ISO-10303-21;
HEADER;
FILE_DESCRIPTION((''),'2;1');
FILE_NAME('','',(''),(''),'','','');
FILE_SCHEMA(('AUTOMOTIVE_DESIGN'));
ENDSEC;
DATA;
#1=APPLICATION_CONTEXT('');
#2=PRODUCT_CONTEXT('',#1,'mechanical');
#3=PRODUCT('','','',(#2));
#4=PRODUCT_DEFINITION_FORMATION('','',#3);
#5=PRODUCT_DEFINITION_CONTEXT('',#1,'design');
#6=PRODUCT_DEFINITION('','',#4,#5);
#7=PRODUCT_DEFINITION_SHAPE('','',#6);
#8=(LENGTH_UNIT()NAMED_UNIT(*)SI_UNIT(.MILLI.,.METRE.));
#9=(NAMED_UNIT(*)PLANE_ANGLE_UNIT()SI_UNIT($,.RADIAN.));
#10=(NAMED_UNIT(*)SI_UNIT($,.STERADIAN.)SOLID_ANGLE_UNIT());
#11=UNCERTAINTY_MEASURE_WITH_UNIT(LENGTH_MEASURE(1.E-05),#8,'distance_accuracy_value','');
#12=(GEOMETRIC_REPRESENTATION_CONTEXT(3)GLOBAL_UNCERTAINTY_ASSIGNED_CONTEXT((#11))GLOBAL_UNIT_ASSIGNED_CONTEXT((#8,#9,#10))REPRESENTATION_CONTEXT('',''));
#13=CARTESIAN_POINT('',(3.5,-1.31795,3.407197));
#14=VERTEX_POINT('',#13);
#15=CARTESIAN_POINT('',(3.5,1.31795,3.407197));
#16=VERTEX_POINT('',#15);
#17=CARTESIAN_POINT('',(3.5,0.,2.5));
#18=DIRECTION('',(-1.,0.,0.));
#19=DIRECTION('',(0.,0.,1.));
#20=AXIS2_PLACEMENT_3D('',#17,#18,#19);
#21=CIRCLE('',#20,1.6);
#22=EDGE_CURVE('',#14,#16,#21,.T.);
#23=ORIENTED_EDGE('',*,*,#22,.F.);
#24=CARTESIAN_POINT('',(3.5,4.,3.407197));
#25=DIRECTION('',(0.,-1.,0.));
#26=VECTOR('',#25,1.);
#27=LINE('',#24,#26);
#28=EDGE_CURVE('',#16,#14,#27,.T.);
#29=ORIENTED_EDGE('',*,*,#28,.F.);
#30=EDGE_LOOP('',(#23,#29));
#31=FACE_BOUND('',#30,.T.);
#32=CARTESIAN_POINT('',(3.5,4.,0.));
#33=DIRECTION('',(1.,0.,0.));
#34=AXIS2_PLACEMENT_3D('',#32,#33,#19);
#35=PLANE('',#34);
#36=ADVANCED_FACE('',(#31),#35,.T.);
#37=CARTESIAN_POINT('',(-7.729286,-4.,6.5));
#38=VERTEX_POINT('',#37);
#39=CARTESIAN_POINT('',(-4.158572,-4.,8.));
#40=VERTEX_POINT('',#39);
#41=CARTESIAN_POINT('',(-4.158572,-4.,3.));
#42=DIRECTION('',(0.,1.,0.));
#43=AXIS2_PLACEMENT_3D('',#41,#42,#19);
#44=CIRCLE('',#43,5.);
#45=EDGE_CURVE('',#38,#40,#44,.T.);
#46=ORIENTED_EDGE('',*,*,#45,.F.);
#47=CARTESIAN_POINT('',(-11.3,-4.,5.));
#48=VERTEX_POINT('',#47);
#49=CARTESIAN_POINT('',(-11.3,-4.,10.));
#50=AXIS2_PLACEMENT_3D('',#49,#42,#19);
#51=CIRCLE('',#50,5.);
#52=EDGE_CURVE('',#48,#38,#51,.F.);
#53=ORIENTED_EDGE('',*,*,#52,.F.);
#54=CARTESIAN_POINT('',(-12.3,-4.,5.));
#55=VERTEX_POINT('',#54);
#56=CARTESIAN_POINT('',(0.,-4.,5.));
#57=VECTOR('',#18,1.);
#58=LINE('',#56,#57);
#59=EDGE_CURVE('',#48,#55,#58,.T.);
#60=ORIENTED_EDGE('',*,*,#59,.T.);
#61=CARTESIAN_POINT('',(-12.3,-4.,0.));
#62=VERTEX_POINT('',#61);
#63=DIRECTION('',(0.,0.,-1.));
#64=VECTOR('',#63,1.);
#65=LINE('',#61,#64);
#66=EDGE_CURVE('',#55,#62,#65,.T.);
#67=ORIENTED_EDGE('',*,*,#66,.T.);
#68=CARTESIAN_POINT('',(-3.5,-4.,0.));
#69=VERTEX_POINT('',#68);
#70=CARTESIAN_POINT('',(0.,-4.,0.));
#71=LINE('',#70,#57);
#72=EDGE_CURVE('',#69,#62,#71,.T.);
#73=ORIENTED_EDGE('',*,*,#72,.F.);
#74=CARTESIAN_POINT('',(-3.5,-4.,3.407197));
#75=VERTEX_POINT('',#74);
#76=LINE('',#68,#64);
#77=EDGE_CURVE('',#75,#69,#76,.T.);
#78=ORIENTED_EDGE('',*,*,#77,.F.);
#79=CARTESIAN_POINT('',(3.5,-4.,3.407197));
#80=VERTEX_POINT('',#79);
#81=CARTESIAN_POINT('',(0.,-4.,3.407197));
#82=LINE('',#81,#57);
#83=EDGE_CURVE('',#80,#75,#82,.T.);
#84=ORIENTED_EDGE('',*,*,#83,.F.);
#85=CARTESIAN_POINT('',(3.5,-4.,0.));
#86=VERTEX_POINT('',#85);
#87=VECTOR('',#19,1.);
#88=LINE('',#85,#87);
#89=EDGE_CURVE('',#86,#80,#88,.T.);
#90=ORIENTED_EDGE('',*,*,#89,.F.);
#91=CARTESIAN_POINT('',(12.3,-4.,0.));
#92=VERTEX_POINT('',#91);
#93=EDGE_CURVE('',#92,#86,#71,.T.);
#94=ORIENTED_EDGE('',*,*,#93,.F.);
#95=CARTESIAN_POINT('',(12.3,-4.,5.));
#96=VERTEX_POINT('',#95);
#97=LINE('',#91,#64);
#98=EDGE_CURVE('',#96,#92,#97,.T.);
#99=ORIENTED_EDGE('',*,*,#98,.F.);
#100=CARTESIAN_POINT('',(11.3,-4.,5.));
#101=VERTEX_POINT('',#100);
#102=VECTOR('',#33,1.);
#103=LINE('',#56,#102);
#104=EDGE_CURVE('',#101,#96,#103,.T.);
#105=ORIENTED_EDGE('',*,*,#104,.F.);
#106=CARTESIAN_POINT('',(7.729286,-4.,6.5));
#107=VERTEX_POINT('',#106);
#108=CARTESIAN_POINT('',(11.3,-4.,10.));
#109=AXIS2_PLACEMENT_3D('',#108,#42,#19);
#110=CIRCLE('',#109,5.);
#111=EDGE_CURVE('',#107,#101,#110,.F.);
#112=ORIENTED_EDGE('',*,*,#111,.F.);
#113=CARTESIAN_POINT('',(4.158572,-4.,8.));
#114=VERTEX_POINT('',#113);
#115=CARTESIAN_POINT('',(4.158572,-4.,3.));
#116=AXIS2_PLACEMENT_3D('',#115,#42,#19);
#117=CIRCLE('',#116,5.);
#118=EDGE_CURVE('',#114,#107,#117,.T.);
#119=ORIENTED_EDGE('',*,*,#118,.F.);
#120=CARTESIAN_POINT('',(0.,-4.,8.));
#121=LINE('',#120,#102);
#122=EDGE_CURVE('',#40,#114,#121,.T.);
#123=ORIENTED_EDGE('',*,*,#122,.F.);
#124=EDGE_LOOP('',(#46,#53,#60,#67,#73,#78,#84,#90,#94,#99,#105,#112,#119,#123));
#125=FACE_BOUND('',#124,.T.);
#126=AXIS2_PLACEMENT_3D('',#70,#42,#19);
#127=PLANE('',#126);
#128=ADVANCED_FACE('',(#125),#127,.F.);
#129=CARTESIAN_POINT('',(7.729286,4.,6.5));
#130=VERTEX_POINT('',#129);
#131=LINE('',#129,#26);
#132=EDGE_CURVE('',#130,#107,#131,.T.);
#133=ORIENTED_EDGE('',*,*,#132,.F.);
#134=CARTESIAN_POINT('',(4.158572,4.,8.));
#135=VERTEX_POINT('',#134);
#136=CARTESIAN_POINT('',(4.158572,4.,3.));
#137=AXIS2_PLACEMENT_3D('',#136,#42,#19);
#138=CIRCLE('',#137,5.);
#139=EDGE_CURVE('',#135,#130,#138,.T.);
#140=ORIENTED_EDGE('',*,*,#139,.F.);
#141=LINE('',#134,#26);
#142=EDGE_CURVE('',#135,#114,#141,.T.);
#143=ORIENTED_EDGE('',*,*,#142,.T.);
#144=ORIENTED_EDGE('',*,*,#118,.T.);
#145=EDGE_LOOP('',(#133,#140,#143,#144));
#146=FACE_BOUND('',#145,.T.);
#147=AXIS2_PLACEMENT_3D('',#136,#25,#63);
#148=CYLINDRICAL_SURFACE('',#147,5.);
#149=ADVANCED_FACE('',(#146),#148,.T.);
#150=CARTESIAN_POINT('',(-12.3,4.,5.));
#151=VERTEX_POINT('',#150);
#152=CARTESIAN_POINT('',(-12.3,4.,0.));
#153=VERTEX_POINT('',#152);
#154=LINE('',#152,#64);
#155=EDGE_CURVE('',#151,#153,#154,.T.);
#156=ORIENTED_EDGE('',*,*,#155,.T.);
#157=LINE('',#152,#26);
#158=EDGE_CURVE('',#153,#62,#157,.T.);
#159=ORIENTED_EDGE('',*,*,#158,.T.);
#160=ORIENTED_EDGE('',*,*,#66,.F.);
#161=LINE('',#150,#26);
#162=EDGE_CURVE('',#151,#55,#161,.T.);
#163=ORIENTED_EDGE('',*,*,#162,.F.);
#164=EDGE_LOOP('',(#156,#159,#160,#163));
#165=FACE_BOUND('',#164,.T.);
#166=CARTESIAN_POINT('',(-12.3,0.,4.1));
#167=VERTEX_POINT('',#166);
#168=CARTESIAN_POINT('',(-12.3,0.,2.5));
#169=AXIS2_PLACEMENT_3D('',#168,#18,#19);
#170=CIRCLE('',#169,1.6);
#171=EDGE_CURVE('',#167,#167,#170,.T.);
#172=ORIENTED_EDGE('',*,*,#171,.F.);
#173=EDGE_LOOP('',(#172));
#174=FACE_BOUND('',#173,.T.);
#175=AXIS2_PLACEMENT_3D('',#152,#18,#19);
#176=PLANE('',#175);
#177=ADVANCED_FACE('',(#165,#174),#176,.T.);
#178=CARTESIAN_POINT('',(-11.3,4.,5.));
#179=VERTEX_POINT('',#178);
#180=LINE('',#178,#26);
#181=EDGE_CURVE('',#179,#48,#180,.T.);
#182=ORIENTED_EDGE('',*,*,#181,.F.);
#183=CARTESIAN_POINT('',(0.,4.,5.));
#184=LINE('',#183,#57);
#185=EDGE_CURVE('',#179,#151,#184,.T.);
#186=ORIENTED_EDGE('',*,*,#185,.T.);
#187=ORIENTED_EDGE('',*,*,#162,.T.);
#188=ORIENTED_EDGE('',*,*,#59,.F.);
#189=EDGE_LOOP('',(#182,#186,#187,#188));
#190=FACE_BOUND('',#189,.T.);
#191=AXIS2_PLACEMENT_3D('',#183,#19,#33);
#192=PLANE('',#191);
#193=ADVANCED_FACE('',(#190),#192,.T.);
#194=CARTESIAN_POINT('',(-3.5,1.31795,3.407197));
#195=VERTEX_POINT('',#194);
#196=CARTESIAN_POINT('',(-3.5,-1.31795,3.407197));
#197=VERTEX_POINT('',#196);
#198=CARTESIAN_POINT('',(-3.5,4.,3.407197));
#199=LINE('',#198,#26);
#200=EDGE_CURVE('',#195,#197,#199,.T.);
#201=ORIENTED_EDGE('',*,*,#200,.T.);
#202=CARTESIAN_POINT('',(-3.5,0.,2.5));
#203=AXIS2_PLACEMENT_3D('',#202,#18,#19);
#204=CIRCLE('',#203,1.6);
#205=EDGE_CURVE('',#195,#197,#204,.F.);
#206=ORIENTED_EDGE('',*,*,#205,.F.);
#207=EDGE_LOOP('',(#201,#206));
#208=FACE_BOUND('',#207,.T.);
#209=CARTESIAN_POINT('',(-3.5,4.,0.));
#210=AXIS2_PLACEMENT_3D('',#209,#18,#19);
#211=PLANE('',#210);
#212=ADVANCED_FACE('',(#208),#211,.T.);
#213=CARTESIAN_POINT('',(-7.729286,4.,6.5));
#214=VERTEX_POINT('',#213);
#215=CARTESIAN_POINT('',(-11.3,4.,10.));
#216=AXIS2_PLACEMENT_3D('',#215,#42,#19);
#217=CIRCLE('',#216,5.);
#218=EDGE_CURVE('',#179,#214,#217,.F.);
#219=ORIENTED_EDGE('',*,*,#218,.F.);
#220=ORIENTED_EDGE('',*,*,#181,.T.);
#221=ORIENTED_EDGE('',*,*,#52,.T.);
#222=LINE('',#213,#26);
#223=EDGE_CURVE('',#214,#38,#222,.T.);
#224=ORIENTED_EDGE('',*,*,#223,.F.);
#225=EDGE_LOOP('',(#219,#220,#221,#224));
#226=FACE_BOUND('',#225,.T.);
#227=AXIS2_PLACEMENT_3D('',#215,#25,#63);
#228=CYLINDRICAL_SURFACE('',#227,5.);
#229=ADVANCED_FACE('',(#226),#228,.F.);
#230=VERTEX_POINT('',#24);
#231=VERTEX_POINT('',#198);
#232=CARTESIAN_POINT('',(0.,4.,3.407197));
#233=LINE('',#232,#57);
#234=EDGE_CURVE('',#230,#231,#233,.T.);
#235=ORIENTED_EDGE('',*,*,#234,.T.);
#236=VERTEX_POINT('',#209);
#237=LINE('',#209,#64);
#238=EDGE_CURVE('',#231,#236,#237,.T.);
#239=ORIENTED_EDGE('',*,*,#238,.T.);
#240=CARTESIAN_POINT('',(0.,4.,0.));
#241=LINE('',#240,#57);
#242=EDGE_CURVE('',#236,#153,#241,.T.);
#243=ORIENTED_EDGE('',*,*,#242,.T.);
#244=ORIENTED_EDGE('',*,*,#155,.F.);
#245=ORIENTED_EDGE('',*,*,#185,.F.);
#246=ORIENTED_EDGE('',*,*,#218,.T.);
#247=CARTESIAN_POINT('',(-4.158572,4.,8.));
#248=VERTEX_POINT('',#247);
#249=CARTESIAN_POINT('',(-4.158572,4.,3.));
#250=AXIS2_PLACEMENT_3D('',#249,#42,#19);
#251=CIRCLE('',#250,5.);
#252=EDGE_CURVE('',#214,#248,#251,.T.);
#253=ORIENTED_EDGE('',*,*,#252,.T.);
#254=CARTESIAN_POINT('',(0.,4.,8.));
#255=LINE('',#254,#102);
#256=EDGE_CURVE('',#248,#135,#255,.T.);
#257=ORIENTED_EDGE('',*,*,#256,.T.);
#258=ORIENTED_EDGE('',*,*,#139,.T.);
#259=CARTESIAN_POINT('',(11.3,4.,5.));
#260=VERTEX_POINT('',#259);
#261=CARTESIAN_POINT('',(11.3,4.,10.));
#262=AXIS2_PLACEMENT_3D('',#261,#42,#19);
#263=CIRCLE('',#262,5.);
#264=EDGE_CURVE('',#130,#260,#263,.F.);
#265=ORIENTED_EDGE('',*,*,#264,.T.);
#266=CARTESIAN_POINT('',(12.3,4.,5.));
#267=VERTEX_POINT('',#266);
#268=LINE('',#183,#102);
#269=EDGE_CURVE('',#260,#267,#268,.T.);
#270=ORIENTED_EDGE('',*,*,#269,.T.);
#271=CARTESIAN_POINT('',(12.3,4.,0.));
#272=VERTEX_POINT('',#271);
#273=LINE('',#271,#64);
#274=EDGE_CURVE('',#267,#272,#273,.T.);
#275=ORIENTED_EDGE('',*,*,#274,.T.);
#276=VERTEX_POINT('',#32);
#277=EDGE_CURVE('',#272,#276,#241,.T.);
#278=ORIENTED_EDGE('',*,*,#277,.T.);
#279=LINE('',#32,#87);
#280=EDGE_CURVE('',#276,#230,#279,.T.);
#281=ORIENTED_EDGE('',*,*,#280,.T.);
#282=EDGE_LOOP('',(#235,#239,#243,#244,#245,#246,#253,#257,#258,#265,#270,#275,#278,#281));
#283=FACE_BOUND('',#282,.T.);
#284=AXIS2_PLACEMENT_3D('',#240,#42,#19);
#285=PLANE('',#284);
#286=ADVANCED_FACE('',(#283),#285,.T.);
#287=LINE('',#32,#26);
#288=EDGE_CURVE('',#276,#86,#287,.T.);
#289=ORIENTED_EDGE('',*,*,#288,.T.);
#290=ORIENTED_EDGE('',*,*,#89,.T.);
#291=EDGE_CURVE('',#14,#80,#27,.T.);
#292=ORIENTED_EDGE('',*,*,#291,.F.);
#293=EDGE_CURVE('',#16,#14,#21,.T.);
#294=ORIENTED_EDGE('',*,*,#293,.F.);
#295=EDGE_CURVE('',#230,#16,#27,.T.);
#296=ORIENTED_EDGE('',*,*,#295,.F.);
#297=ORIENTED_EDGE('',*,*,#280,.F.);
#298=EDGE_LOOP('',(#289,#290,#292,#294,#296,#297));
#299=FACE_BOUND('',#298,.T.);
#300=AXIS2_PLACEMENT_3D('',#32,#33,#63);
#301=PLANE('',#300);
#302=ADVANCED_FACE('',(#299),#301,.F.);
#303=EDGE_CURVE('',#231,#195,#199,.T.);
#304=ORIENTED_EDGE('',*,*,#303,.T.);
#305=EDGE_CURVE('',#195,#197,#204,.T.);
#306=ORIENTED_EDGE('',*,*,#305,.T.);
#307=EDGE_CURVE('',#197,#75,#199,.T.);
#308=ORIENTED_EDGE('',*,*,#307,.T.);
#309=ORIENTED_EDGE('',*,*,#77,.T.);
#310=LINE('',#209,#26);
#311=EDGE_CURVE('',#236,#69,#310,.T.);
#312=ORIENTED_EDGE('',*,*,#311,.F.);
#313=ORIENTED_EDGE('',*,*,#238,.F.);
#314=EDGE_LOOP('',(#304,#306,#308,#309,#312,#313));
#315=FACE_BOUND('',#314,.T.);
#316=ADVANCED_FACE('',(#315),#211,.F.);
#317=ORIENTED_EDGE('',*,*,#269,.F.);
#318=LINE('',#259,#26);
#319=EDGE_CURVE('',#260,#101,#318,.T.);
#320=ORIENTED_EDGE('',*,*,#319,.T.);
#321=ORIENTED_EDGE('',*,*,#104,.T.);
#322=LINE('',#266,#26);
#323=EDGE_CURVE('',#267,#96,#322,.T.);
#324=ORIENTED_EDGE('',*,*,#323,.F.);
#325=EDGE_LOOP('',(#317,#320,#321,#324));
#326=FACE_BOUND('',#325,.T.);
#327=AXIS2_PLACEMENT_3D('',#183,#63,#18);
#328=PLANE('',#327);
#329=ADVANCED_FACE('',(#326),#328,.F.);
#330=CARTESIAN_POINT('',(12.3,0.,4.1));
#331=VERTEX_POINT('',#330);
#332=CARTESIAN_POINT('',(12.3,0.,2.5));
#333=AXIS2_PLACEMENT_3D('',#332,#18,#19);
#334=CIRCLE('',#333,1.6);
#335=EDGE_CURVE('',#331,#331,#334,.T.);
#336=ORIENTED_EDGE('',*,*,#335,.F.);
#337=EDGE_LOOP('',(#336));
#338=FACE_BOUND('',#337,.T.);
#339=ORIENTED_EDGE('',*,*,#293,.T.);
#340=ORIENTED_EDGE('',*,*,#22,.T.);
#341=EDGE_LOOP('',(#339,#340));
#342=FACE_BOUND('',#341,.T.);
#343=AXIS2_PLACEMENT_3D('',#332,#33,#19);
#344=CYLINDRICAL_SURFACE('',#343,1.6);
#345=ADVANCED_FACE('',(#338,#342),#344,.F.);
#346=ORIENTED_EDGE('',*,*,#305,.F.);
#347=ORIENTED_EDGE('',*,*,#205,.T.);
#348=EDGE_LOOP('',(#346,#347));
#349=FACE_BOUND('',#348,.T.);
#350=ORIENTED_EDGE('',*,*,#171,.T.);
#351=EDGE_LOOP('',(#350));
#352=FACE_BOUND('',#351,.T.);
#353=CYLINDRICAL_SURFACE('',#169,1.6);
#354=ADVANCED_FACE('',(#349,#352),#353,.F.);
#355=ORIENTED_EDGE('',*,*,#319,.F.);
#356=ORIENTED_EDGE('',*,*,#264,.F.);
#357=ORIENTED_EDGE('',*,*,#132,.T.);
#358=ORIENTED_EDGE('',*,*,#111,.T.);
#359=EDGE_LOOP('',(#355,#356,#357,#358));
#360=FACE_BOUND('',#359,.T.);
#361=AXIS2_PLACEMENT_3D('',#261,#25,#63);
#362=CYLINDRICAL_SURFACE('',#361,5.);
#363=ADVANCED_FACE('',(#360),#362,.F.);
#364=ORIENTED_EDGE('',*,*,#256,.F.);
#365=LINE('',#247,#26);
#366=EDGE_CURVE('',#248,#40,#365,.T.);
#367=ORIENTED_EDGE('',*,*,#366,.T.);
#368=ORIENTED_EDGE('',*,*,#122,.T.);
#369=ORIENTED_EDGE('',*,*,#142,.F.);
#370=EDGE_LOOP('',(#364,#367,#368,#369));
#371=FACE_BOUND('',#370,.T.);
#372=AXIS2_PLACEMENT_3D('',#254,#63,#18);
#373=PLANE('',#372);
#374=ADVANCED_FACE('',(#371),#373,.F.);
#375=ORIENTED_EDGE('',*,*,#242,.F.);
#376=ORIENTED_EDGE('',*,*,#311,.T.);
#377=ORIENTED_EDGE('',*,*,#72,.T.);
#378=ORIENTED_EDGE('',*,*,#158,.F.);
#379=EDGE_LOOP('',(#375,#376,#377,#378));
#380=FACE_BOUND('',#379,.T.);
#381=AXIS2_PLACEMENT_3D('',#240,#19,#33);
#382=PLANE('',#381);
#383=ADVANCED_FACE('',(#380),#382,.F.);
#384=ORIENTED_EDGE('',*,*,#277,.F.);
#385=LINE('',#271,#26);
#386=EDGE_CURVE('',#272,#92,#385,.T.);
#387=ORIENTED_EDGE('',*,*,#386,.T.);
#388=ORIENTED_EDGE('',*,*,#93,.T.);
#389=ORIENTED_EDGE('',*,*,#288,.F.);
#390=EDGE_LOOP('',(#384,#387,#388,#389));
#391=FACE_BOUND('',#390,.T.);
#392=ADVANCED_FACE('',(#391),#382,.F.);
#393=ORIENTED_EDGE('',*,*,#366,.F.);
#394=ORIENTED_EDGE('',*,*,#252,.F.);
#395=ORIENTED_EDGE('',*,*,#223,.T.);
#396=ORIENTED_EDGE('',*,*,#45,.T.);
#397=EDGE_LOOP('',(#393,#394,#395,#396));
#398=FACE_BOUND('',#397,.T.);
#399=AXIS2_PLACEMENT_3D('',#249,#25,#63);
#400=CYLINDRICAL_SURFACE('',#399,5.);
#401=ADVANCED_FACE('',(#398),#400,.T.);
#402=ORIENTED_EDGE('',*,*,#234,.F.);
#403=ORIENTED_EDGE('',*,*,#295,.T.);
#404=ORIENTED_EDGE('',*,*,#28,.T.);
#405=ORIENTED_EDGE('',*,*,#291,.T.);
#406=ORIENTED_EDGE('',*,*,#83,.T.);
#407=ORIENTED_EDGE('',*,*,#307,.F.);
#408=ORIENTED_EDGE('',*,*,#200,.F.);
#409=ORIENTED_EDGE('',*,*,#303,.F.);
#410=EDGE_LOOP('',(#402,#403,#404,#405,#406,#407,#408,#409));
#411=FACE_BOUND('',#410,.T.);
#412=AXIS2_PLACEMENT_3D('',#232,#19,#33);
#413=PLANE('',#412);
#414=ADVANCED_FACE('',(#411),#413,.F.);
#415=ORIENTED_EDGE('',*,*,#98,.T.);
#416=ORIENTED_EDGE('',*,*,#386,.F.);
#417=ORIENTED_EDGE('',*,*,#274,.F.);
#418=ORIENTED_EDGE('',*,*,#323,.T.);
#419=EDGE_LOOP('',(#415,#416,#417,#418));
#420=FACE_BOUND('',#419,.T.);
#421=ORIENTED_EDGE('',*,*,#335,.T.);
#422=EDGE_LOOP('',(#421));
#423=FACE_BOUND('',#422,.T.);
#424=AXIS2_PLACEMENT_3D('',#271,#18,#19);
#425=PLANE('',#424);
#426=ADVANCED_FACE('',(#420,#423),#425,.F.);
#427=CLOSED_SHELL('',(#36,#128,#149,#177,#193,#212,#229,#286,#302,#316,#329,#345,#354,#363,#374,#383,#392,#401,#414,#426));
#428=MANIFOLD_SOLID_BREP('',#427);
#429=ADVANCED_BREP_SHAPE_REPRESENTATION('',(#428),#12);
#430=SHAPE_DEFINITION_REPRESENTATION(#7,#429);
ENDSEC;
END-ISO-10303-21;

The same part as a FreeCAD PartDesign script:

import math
import FreeCAD as App
import Part
import Sketcher

V = App.Vector
Q = App.Units.Quantity

doc = App.newDocument("Part")
body = doc.addObject("PartDesign::Body", "Body")

sketch1 = body.newObject("Sketcher::SketchObject", "Sketch")
sketch1.AttachmentSupport = (doc.getObject("XZ_Plane"), [""])
sketch1.MapMode = "FlatFace"
sketch1.AttachmentOffset = App.Placement(V(0, 0, 4), App.Rotation())
sketch1.addGeometry([
    Part.ArcOfCircle(Part.Circle(V(-4.2, 3, 0), V(0, 0, 1), 5), math.radians(90), math.radians(136)),
    Part.LineSegment(V(-4.2, 8, 0), V(4.2, 8, 0)),
    Part.ArcOfCircle(Part.Circle(V(4.2, 3, 0), V(0, 0, 1), 5), math.radians(44), math.radians(90)),
    Part.ArcOfCircle(Part.Circle(V(11.3, 10, 0), V(0, 0, 1), 5), math.radians(-136), math.radians(-90)),
    Part.LineSegment(V(11.3, 5, 0), V(12.3, 5, 0)),
    Part.LineSegment(V(12.3, 5, 0), V(12.3, 0, 0)),
    Part.LineSegment(V(12.3, 0, 0), V(3.5, 0, 0)),
    Part.LineSegment(V(3.5, 0, 0), V(3.5, 3.4, 0)),
    Part.LineSegment(V(3.5, 3.4, 0), V(-3.5, 3.4, 0)),
    Part.LineSegment(V(-3.5, 3.4, 0), V(-3.5, 0, 0)),
    Part.LineSegment(V(-3.5, 0, 0), V(-12.3, 0, 0)),
    Part.LineSegment(V(-12.3, 0, 0), V(-12.3, 5, 0)),
    Part.LineSegment(V(-12.3, 5, 0), V(-11.3, 5, 0)),
    Part.ArcOfCircle(Part.Circle(V(-11.3, 10, 0), V(0, 0, 1), 5), math.radians(-90), math.radians(-44)),
], False)
sketch1.addConstraint([
    Sketcher.Constraint("Tangent", 0, 1, 1, 1),
    Sketcher.Constraint("Tangent", 1, 2, 2, 2),
    Sketcher.Constraint("Tangent", 2, 1, 3, 1),
    Sketcher.Constraint("Tangent", 3, 2, 4, 1),
    Sketcher.Constraint("Coincident", 4, 2, 5, 1),
    Sketcher.Constraint("Coincident", 5, 2, 6, 1),
    Sketcher.Constraint("Coincident", 6, 2, 7, 1),
    Sketcher.Constraint("Coincident", 7, 2, 8, 1),
    Sketcher.Constraint("Coincident", 8, 2, 9, 1),
    Sketcher.Constraint("Coincident", 9, 2, 10, 1),
    Sketcher.Constraint("Coincident", 10, 2, 11, 1),
    Sketcher.Constraint("Coincident", 11, 2, 12, 1),
    Sketcher.Constraint("Tangent", 12, 2, 13, 1),
    Sketcher.Constraint("Tangent", 13, 2, 0, 2),
    Sketcher.Constraint("Horizontal", 1),
    Sketcher.Constraint("Horizontal", 4),
    Sketcher.Constraint("Vertical", 5),
    Sketcher.Constraint("Horizontal", 6),
    Sketcher.Constraint("Vertical", 7),
    Sketcher.Constraint("Horizontal", 8),
    Sketcher.Constraint("Vertical", 9),
    Sketcher.Constraint("Horizontal", 10),
    Sketcher.Constraint("Vertical", 11),
    Sketcher.Constraint("Horizontal", 12),
    Sketcher.Constraint("Equal", 0, 2),
    Sketcher.Constraint("Equal", 2, 3),
    Sketcher.Constraint("Equal", 3, 13),
    Sketcher.Constraint("Symmetric", 6, 2, 9, 2, -1, 1),
    Sketcher.Constraint("Symmetric", 3, 3, 13, 3, -2),
    Sketcher.Constraint("Symmetric", 5, 2, 10, 2, -2),
    Sketcher.Constraint("Radius", 0, Q("5 mm")),
    Sketcher.Constraint("DistanceX", 4, 1, 4, 2, Q("1 mm")),
    Sketcher.Constraint("DistanceX", 8, 2, 8, 1, Q("7 mm")),
    Sketcher.Constraint("DistanceY", 5, 2, 5, 1, Q("5 mm")),
    Sketcher.Constraint("DistanceX", 6, 2, 6, 1, Q("8.8 mm")),
    Sketcher.Constraint("DistanceY", -1, 1, 0, 3, Q("3 mm")),
    Sketcher.Constraint("DistanceY", 7, 1, 7, 2, Q("3.407197 mm")),
])
pad1 = body.newObject("PartDesign::Pad", "Pad")
pad1.Profile = sketch1
pad1.Length = 8
pad1.Reversed = True

sketch2 = body.newObject("Sketcher::SketchObject", "Sketch001")
sketch2.AttachmentSupport = (doc.getObject("YZ_Plane"), [""])
sketch2.MapMode = "FlatFace"
sketch2.AttachmentOffset = App.Placement(V(0, 0, -12.3), App.Rotation())
sketch2.addGeometry(Part.Circle(V(0, 2.5, 0), V(0, 0, 1), 1.6), False)
sketch2.addConstraint([
    Sketcher.Constraint("PointOnObject", 0, 3, -2),
    Sketcher.Constraint("Diameter", 0, Q("3.2 mm")),
    Sketcher.Constraint("DistanceY", -1, 1, 0, 3, Q("2.5 mm")),
])
doc.recompute()
hole = body.newObject("PartDesign::Hole", "Hole")
hole.Profile = sketch2
hole.ThreadType = "None"
hole.Diameter = 3.2
hole.DepthType = "Dimension"
hole.Depth = 8.8
hole.DrillPoint = "Flat"
hole.Reversed = True
doc.recompute()

mirrored = body.newObject("PartDesign::Mirrored", "Mirrored")
mirrored.Originals = [hole]
mirrored.MirrorPlane = (doc.getObject("YZ_Plane"), [""])
body.Tip = mirrored

doc.recompute()
